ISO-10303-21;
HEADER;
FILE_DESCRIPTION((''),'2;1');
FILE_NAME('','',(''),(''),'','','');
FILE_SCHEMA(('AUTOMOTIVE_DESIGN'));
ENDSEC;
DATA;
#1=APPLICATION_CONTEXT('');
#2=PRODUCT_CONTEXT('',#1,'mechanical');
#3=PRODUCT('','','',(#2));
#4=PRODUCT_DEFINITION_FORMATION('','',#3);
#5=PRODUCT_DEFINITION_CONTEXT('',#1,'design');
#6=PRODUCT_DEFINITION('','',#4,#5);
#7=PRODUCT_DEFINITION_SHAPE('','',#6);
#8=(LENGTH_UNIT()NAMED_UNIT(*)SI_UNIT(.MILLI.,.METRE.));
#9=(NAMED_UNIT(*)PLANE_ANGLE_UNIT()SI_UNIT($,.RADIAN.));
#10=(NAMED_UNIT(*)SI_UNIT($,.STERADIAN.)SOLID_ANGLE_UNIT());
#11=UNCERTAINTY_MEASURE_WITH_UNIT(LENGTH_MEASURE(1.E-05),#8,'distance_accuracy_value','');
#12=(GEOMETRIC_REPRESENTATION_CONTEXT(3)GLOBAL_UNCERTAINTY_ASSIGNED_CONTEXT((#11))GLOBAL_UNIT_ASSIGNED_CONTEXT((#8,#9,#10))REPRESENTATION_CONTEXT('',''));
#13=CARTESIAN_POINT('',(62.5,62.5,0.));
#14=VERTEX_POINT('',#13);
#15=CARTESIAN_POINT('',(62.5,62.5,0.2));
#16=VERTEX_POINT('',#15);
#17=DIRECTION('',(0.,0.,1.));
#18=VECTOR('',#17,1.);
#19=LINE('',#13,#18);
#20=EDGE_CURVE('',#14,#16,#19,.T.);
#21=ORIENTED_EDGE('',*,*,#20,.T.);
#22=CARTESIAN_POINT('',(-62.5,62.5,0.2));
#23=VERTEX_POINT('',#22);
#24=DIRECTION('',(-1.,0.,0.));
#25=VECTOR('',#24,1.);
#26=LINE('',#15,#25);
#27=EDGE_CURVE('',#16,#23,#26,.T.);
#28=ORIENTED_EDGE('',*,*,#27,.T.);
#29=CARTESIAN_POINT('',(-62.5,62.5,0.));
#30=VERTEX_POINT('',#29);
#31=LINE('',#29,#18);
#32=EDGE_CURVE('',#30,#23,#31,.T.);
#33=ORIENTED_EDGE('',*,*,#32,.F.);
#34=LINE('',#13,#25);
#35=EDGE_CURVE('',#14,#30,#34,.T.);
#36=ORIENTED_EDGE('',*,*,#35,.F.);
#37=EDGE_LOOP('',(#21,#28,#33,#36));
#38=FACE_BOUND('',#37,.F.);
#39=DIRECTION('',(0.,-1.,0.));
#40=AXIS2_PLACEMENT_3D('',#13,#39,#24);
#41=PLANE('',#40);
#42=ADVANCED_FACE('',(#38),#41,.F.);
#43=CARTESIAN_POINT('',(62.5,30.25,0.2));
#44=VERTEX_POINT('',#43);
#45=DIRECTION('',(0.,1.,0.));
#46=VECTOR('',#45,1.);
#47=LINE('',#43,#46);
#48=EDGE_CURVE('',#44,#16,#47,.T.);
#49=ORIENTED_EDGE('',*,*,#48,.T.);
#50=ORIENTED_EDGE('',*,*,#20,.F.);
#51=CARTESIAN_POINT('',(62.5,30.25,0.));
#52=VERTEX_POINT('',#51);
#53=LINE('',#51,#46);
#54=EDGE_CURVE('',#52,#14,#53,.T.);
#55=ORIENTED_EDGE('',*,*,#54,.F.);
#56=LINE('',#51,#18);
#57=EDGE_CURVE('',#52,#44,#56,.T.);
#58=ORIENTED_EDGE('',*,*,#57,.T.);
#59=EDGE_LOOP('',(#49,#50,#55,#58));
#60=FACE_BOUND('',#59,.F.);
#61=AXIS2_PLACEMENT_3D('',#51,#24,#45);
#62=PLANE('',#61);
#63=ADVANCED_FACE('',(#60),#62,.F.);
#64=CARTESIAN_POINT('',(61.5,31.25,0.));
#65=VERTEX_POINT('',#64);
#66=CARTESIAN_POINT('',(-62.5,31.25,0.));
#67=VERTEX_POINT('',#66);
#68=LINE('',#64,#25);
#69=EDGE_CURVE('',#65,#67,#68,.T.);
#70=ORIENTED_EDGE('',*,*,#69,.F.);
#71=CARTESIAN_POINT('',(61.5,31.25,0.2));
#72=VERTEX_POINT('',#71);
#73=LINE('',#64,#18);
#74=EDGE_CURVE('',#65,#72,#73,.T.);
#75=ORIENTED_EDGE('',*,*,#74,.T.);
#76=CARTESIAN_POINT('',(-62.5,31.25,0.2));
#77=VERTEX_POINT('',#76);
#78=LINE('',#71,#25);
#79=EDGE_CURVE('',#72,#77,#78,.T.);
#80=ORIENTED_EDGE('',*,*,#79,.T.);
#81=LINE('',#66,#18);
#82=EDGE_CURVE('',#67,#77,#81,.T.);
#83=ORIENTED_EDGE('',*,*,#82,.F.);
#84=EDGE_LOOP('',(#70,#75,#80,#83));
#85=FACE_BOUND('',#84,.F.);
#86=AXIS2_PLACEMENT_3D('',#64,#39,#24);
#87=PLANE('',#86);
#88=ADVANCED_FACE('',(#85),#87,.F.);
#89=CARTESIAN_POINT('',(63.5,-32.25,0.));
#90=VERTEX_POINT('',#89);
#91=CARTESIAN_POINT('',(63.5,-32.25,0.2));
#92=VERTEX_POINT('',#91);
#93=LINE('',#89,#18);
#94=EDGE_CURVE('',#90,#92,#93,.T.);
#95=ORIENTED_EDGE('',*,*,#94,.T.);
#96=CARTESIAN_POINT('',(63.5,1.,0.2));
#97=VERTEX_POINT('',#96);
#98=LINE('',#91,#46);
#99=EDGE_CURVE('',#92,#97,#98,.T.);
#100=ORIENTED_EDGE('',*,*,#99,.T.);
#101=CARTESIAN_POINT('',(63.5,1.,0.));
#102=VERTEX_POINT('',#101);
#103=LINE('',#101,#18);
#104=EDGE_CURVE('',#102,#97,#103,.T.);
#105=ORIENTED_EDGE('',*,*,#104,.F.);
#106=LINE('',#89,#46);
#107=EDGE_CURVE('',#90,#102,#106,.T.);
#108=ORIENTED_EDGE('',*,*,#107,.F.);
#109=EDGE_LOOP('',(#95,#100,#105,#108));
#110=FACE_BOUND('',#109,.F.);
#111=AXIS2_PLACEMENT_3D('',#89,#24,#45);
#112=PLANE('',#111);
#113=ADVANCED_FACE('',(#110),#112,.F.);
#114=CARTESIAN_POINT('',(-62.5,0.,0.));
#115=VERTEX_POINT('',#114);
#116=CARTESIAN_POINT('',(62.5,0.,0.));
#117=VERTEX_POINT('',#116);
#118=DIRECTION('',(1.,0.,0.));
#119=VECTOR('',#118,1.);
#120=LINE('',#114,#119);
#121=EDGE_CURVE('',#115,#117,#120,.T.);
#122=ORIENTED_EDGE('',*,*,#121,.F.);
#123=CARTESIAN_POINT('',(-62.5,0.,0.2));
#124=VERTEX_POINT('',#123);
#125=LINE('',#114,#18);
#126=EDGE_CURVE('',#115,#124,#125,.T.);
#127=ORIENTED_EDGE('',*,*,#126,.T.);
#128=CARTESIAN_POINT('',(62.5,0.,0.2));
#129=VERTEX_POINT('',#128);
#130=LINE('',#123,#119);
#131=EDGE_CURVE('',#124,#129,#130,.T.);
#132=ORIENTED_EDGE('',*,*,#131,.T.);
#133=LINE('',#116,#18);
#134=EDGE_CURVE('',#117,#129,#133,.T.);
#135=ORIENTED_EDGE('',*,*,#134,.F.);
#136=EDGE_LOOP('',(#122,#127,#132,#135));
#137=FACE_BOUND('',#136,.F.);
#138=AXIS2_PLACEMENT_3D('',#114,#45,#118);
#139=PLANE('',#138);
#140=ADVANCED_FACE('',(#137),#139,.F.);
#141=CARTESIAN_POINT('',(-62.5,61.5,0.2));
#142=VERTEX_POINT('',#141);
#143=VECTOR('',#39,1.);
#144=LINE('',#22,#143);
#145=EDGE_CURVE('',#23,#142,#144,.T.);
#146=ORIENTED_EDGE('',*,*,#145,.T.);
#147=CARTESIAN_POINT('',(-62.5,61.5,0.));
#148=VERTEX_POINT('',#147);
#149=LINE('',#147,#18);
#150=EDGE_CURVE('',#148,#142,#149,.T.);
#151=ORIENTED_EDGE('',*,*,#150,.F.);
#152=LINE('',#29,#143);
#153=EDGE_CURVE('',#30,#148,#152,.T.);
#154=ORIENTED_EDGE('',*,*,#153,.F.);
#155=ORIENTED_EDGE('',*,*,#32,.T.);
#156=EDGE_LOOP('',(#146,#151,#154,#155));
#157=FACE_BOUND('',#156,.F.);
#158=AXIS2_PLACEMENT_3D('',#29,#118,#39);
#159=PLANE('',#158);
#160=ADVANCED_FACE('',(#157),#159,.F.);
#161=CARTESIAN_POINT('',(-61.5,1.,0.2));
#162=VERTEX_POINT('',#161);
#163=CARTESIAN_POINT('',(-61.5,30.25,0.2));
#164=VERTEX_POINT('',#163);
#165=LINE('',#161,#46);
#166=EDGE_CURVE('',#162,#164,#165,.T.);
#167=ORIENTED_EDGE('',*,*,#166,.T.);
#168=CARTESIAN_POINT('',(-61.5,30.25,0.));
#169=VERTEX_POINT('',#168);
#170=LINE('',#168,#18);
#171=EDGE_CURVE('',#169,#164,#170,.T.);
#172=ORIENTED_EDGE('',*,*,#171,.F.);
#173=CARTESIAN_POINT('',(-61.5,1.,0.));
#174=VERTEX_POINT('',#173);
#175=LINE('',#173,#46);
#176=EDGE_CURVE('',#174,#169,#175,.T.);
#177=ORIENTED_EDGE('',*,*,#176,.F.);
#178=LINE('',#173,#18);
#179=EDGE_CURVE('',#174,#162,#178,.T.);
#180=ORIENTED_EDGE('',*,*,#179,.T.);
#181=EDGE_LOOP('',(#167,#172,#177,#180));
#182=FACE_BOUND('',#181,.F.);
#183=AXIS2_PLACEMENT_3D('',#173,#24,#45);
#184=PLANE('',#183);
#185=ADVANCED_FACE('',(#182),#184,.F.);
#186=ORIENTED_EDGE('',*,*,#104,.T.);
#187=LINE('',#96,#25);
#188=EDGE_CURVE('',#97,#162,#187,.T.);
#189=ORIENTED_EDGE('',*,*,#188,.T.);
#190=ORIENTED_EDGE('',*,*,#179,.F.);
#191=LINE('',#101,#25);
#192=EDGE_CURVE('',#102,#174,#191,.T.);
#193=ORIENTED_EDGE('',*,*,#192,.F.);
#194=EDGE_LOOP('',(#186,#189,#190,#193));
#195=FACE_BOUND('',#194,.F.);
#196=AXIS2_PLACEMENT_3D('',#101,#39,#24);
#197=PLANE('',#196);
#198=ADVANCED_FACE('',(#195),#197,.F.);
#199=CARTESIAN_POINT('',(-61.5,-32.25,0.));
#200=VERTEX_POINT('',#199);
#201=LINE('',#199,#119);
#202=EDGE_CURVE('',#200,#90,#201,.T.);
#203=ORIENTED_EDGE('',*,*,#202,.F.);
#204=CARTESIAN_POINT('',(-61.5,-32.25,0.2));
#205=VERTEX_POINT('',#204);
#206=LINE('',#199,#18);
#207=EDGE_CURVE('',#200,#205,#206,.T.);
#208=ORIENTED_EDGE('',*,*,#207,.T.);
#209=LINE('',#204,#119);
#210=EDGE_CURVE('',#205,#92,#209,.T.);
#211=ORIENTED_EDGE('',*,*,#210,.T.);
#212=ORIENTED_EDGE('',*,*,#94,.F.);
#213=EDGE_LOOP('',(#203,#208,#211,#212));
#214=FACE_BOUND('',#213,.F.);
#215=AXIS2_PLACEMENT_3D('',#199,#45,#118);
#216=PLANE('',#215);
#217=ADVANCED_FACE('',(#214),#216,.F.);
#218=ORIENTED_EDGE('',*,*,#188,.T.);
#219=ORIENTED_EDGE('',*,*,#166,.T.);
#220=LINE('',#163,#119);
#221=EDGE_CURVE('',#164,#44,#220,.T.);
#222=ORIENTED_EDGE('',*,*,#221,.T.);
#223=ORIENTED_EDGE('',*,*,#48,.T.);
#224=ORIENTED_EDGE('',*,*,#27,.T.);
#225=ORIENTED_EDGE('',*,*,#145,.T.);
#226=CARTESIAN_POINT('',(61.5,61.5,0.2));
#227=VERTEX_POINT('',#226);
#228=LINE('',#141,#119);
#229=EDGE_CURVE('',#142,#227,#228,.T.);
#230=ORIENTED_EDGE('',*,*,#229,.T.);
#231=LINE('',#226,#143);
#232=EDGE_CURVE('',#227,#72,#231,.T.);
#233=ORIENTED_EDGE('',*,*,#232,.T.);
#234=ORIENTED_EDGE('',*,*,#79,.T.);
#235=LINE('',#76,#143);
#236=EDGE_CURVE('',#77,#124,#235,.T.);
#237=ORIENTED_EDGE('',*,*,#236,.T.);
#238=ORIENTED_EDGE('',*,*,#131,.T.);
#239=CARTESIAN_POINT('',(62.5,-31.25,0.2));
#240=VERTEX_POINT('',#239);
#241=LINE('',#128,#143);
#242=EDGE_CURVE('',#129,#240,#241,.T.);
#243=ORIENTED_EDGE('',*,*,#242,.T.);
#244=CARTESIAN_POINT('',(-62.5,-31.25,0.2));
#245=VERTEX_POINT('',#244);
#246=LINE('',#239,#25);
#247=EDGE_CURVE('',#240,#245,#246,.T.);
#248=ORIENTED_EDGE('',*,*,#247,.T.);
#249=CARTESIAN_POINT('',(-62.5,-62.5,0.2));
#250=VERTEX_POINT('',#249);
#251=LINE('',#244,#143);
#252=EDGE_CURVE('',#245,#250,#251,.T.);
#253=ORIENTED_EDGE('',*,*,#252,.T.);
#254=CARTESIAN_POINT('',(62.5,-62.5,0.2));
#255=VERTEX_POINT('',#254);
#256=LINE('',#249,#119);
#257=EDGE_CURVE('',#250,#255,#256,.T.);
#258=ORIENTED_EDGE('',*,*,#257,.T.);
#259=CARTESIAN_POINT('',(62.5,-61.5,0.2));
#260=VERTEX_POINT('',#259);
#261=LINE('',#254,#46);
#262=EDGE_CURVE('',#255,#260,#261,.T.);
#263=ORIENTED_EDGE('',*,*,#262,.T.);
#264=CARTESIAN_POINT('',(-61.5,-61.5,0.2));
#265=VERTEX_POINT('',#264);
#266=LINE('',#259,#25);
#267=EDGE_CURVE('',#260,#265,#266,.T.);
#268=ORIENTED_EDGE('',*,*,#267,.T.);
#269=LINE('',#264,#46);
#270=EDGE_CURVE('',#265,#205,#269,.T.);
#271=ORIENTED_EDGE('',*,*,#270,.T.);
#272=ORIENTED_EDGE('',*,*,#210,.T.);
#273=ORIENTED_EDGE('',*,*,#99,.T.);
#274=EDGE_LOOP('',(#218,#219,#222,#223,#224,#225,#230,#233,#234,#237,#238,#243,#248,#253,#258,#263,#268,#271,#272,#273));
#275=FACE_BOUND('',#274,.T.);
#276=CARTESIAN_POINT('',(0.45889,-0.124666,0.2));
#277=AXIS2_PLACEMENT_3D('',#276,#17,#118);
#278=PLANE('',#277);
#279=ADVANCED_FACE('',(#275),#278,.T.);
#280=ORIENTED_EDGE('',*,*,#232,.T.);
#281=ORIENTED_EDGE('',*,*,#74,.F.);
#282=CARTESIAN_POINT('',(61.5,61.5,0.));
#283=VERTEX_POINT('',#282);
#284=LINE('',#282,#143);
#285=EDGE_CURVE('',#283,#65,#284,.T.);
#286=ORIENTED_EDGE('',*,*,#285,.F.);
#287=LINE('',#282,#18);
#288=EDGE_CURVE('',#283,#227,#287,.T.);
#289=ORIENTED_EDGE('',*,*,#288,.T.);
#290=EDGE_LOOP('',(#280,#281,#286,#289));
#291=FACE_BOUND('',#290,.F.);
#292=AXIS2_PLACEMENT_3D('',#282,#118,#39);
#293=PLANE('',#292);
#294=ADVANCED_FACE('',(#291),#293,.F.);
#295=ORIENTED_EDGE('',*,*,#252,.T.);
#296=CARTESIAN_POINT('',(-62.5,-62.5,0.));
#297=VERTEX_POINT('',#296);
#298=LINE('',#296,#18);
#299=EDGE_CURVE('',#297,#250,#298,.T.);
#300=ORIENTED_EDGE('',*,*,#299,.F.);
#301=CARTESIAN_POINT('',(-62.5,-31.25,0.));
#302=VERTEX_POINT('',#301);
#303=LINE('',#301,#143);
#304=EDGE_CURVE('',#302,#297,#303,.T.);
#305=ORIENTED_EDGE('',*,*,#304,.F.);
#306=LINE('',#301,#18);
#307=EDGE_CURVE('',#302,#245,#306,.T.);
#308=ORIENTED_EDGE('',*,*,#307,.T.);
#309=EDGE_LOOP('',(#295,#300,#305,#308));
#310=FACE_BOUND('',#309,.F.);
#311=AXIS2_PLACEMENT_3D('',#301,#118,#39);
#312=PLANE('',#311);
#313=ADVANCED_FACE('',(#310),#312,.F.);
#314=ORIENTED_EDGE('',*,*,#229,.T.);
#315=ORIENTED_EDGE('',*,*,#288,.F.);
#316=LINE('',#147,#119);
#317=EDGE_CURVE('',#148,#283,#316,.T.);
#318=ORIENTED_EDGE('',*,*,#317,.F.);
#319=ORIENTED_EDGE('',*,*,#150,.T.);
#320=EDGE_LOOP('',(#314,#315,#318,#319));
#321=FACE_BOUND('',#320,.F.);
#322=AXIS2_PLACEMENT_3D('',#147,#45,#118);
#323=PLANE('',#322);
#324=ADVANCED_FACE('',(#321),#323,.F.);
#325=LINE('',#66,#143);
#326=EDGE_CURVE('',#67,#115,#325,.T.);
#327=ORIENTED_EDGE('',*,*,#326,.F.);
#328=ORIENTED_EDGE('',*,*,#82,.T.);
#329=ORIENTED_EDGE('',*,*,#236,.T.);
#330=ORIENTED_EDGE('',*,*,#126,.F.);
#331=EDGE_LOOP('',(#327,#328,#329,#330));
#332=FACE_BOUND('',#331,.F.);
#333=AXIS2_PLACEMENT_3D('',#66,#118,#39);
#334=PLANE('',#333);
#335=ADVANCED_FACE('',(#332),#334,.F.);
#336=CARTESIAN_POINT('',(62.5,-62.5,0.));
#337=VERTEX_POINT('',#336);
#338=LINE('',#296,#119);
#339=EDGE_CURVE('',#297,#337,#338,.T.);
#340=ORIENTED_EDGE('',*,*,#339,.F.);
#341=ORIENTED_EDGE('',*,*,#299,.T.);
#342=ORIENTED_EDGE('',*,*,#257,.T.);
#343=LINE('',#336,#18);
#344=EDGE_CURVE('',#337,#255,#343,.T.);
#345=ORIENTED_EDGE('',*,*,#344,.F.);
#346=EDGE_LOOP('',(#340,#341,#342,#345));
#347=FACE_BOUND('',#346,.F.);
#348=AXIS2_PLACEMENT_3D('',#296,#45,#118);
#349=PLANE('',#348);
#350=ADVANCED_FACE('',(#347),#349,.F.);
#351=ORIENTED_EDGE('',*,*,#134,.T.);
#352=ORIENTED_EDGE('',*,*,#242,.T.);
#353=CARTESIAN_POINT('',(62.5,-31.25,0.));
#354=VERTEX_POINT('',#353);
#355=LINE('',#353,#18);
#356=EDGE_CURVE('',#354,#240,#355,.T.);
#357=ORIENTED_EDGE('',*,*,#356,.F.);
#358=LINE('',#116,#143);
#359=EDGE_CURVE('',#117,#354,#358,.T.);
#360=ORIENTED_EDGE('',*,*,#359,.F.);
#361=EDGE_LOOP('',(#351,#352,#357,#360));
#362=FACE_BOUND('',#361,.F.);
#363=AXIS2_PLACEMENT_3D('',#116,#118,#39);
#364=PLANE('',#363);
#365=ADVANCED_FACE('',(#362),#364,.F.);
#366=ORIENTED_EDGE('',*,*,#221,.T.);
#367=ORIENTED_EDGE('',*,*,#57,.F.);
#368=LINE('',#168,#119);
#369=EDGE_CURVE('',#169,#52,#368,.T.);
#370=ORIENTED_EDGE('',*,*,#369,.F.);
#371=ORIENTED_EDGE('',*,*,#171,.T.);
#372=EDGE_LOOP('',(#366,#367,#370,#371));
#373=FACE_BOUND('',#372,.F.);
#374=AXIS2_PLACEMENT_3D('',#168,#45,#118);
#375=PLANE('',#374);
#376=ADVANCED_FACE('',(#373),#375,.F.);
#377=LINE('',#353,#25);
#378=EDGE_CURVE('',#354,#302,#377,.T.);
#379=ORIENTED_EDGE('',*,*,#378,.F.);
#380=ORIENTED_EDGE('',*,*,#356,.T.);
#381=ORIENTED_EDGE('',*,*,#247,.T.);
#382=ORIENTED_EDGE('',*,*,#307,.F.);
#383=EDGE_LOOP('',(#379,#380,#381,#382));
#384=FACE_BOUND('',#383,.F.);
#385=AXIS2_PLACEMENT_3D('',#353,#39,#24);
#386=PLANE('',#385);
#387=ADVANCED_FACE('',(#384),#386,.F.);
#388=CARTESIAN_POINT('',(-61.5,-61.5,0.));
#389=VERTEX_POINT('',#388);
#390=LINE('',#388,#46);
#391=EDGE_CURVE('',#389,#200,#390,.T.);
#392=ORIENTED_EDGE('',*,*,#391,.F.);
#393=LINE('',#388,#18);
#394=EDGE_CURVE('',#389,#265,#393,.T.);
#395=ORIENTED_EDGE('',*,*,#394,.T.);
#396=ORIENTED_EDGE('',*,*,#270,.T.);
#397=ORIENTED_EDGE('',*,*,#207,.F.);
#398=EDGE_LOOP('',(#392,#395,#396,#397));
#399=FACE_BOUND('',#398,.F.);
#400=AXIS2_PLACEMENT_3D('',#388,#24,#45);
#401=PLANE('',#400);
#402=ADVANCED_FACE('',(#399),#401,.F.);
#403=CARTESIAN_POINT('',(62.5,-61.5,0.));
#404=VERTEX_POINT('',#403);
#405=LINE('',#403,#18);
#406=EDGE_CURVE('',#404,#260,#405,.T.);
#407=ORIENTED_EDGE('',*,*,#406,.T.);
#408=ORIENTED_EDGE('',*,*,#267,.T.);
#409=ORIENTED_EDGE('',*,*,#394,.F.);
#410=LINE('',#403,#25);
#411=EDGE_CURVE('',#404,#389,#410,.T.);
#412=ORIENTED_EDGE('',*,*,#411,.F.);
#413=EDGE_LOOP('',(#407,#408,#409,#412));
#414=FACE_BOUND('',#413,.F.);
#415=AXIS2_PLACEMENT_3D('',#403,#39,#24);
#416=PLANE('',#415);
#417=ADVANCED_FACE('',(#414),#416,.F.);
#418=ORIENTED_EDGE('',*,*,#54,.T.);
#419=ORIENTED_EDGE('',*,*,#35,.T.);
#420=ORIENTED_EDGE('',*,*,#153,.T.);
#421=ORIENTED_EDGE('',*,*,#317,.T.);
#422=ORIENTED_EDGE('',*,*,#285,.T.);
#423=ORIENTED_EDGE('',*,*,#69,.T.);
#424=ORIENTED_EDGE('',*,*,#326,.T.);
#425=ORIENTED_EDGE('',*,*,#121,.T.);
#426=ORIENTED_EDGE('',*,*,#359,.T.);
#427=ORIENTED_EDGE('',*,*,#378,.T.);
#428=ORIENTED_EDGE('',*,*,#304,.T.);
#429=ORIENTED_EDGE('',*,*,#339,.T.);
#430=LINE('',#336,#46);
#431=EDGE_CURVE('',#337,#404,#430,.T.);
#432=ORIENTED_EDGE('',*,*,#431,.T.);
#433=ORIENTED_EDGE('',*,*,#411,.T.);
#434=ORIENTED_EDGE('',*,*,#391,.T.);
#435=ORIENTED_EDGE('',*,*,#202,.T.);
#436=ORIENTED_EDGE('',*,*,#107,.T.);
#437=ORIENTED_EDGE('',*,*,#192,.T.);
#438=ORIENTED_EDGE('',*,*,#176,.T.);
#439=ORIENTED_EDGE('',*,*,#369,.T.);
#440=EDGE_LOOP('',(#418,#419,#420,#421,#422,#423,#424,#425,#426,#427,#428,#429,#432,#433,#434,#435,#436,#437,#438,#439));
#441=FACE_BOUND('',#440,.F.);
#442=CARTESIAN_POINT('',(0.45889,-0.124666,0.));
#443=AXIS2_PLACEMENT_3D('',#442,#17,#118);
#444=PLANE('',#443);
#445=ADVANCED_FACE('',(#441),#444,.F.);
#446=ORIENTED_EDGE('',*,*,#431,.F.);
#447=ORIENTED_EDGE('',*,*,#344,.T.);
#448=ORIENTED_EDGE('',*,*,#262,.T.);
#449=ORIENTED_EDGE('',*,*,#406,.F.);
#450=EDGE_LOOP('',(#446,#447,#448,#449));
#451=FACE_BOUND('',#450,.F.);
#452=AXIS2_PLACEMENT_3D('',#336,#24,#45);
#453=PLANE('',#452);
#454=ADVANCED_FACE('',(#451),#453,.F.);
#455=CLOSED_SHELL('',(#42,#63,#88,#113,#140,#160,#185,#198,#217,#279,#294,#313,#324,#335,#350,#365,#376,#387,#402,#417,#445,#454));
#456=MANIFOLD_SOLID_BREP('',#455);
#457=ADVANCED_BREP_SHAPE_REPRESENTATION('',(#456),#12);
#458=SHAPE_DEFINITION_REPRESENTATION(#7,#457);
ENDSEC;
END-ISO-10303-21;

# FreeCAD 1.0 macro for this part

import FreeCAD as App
import Part
import Sketcher
from FreeCAD import Vector


def add_polygon(sketch, points):
    """Adds a closed chain of lines whose ends are joined by coincident constraints."""
    first, n = sketch.GeometryCount, len(points)
    for a, b in zip(points, points[1:] + points[:1]):
        sketch.addGeometry(Part.LineSegment(App.Vector(*a, 0), App.Vector(*b, 0)), False)
    for i in range(n):
        sketch.addConstraint(Sketcher.Constraint("Coincident", first + i, 2, first + (i + 1) % n, 1))

doc = App.newDocument("Part")
body = doc.addObject("PartDesign::Body", "Body")

# Sketch on XY plane
sketch1 = body.newObject("Sketcher::SketchObject", "Sketch")
sketch1.AttachmentSupport = (doc.getObject("XY_Plane"), [""])
sketch1.MapMode = "FlatFace"
add_polygon(sketch1, [(61.5, 31.25), (-62.5, 31.25), (-62.5, 0), (62.5, 0), (62.5, -31.25), (-62.5, -31.25), (-62.5, -62.5), (62.5, -62.5), (62.5, -61.5), (-61.5, -61.5), (-61.5, -32.25), (63.5, -32.25), (63.5, 1), (-61.5, 1), (-61.5, 30.25), (62.5, 30.25), (62.5, 62.5), (-62.5, 62.5), (-62.5, 61.5), (61.5, 61.5)])  # lines 0-19
sketch1.addConstraint([
    Sketcher.Constraint("Horizontal", 0),
    Sketcher.Constraint("Vertical", 1),
    Sketcher.Constraint("Horizontal", 2),
    Sketcher.Constraint("Vertical", 3),
    Sketcher.Constraint("Horizontal", 4),
    Sketcher.Constraint("Vertical", 5),
    Sketcher.Constraint("Horizontal", 6),
    Sketcher.Constraint("Vertical", 7),
    Sketcher.Constraint("Horizontal", 8),
    Sketcher.Constraint("Vertical", 9),
    Sketcher.Constraint("Horizontal", 10),
    Sketcher.Constraint("Vertical", 11),
    Sketcher.Constraint("Horizontal", 12),
    Sketcher.Constraint("Vertical", 13),
    Sketcher.Constraint("Horizontal", 14),
    Sketcher.Constraint("Vertical", 15),
    Sketcher.Constraint("Horizontal", 16),
    Sketcher.Constraint("Vertical", 17),
    Sketcher.Constraint("Horizontal", 18),
    Sketcher.Constraint("Vertical", 19),
    Sketcher.Constraint("Symmetric", 1, 2, 2, 2, -1, 1),
    Sketcher.Constraint("Symmetric", 5, 2, 15, 2, -1, 1),
    Sketcher.Constraint("Symmetric", 7, 2, 17, 2, -1, 1),
    Sketcher.Constraint("Symmetric", 0, 2, 4, 2, -1),
    Sketcher.Constraint("Vertical", 3, 2, 6, 2),
    Sketcher.Constraint("Vertical", 9, 2, 12, 2),
    Sketcher.Constraint("Equal", 0, 8),
    Sketcher.Constraint("Equal", 6, 10),
    Sketcher.Constraint("Equal", 3, 5),
    Sketcher.Constraint("Equal", 9, 13),
    Sketcher.Constraint("DistanceX", 0, 2, 0, 1, 124.0),
    Sketcher.Constraint("DistanceX", 2, 1, 2, 2, 125.0),
    Sketcher.Constraint("DistanceY", 7, 1, 7, 2, 1.0),
    Sketcher.Constraint("DistanceY", -1, 1, 11, 2, 1.0),
    Sketcher.Constraint("DistanceY", 9, 2, 4, 2, 1.0),
    Sketcher.Constraint("DistanceY", 1, 2, 1, 1, 31.25),
])
pad1 = body.newObject("PartDesign::Pad", "Pad")
pad1.Profile = sketch1
pad1.Length = 0.2

doc.recompute()
